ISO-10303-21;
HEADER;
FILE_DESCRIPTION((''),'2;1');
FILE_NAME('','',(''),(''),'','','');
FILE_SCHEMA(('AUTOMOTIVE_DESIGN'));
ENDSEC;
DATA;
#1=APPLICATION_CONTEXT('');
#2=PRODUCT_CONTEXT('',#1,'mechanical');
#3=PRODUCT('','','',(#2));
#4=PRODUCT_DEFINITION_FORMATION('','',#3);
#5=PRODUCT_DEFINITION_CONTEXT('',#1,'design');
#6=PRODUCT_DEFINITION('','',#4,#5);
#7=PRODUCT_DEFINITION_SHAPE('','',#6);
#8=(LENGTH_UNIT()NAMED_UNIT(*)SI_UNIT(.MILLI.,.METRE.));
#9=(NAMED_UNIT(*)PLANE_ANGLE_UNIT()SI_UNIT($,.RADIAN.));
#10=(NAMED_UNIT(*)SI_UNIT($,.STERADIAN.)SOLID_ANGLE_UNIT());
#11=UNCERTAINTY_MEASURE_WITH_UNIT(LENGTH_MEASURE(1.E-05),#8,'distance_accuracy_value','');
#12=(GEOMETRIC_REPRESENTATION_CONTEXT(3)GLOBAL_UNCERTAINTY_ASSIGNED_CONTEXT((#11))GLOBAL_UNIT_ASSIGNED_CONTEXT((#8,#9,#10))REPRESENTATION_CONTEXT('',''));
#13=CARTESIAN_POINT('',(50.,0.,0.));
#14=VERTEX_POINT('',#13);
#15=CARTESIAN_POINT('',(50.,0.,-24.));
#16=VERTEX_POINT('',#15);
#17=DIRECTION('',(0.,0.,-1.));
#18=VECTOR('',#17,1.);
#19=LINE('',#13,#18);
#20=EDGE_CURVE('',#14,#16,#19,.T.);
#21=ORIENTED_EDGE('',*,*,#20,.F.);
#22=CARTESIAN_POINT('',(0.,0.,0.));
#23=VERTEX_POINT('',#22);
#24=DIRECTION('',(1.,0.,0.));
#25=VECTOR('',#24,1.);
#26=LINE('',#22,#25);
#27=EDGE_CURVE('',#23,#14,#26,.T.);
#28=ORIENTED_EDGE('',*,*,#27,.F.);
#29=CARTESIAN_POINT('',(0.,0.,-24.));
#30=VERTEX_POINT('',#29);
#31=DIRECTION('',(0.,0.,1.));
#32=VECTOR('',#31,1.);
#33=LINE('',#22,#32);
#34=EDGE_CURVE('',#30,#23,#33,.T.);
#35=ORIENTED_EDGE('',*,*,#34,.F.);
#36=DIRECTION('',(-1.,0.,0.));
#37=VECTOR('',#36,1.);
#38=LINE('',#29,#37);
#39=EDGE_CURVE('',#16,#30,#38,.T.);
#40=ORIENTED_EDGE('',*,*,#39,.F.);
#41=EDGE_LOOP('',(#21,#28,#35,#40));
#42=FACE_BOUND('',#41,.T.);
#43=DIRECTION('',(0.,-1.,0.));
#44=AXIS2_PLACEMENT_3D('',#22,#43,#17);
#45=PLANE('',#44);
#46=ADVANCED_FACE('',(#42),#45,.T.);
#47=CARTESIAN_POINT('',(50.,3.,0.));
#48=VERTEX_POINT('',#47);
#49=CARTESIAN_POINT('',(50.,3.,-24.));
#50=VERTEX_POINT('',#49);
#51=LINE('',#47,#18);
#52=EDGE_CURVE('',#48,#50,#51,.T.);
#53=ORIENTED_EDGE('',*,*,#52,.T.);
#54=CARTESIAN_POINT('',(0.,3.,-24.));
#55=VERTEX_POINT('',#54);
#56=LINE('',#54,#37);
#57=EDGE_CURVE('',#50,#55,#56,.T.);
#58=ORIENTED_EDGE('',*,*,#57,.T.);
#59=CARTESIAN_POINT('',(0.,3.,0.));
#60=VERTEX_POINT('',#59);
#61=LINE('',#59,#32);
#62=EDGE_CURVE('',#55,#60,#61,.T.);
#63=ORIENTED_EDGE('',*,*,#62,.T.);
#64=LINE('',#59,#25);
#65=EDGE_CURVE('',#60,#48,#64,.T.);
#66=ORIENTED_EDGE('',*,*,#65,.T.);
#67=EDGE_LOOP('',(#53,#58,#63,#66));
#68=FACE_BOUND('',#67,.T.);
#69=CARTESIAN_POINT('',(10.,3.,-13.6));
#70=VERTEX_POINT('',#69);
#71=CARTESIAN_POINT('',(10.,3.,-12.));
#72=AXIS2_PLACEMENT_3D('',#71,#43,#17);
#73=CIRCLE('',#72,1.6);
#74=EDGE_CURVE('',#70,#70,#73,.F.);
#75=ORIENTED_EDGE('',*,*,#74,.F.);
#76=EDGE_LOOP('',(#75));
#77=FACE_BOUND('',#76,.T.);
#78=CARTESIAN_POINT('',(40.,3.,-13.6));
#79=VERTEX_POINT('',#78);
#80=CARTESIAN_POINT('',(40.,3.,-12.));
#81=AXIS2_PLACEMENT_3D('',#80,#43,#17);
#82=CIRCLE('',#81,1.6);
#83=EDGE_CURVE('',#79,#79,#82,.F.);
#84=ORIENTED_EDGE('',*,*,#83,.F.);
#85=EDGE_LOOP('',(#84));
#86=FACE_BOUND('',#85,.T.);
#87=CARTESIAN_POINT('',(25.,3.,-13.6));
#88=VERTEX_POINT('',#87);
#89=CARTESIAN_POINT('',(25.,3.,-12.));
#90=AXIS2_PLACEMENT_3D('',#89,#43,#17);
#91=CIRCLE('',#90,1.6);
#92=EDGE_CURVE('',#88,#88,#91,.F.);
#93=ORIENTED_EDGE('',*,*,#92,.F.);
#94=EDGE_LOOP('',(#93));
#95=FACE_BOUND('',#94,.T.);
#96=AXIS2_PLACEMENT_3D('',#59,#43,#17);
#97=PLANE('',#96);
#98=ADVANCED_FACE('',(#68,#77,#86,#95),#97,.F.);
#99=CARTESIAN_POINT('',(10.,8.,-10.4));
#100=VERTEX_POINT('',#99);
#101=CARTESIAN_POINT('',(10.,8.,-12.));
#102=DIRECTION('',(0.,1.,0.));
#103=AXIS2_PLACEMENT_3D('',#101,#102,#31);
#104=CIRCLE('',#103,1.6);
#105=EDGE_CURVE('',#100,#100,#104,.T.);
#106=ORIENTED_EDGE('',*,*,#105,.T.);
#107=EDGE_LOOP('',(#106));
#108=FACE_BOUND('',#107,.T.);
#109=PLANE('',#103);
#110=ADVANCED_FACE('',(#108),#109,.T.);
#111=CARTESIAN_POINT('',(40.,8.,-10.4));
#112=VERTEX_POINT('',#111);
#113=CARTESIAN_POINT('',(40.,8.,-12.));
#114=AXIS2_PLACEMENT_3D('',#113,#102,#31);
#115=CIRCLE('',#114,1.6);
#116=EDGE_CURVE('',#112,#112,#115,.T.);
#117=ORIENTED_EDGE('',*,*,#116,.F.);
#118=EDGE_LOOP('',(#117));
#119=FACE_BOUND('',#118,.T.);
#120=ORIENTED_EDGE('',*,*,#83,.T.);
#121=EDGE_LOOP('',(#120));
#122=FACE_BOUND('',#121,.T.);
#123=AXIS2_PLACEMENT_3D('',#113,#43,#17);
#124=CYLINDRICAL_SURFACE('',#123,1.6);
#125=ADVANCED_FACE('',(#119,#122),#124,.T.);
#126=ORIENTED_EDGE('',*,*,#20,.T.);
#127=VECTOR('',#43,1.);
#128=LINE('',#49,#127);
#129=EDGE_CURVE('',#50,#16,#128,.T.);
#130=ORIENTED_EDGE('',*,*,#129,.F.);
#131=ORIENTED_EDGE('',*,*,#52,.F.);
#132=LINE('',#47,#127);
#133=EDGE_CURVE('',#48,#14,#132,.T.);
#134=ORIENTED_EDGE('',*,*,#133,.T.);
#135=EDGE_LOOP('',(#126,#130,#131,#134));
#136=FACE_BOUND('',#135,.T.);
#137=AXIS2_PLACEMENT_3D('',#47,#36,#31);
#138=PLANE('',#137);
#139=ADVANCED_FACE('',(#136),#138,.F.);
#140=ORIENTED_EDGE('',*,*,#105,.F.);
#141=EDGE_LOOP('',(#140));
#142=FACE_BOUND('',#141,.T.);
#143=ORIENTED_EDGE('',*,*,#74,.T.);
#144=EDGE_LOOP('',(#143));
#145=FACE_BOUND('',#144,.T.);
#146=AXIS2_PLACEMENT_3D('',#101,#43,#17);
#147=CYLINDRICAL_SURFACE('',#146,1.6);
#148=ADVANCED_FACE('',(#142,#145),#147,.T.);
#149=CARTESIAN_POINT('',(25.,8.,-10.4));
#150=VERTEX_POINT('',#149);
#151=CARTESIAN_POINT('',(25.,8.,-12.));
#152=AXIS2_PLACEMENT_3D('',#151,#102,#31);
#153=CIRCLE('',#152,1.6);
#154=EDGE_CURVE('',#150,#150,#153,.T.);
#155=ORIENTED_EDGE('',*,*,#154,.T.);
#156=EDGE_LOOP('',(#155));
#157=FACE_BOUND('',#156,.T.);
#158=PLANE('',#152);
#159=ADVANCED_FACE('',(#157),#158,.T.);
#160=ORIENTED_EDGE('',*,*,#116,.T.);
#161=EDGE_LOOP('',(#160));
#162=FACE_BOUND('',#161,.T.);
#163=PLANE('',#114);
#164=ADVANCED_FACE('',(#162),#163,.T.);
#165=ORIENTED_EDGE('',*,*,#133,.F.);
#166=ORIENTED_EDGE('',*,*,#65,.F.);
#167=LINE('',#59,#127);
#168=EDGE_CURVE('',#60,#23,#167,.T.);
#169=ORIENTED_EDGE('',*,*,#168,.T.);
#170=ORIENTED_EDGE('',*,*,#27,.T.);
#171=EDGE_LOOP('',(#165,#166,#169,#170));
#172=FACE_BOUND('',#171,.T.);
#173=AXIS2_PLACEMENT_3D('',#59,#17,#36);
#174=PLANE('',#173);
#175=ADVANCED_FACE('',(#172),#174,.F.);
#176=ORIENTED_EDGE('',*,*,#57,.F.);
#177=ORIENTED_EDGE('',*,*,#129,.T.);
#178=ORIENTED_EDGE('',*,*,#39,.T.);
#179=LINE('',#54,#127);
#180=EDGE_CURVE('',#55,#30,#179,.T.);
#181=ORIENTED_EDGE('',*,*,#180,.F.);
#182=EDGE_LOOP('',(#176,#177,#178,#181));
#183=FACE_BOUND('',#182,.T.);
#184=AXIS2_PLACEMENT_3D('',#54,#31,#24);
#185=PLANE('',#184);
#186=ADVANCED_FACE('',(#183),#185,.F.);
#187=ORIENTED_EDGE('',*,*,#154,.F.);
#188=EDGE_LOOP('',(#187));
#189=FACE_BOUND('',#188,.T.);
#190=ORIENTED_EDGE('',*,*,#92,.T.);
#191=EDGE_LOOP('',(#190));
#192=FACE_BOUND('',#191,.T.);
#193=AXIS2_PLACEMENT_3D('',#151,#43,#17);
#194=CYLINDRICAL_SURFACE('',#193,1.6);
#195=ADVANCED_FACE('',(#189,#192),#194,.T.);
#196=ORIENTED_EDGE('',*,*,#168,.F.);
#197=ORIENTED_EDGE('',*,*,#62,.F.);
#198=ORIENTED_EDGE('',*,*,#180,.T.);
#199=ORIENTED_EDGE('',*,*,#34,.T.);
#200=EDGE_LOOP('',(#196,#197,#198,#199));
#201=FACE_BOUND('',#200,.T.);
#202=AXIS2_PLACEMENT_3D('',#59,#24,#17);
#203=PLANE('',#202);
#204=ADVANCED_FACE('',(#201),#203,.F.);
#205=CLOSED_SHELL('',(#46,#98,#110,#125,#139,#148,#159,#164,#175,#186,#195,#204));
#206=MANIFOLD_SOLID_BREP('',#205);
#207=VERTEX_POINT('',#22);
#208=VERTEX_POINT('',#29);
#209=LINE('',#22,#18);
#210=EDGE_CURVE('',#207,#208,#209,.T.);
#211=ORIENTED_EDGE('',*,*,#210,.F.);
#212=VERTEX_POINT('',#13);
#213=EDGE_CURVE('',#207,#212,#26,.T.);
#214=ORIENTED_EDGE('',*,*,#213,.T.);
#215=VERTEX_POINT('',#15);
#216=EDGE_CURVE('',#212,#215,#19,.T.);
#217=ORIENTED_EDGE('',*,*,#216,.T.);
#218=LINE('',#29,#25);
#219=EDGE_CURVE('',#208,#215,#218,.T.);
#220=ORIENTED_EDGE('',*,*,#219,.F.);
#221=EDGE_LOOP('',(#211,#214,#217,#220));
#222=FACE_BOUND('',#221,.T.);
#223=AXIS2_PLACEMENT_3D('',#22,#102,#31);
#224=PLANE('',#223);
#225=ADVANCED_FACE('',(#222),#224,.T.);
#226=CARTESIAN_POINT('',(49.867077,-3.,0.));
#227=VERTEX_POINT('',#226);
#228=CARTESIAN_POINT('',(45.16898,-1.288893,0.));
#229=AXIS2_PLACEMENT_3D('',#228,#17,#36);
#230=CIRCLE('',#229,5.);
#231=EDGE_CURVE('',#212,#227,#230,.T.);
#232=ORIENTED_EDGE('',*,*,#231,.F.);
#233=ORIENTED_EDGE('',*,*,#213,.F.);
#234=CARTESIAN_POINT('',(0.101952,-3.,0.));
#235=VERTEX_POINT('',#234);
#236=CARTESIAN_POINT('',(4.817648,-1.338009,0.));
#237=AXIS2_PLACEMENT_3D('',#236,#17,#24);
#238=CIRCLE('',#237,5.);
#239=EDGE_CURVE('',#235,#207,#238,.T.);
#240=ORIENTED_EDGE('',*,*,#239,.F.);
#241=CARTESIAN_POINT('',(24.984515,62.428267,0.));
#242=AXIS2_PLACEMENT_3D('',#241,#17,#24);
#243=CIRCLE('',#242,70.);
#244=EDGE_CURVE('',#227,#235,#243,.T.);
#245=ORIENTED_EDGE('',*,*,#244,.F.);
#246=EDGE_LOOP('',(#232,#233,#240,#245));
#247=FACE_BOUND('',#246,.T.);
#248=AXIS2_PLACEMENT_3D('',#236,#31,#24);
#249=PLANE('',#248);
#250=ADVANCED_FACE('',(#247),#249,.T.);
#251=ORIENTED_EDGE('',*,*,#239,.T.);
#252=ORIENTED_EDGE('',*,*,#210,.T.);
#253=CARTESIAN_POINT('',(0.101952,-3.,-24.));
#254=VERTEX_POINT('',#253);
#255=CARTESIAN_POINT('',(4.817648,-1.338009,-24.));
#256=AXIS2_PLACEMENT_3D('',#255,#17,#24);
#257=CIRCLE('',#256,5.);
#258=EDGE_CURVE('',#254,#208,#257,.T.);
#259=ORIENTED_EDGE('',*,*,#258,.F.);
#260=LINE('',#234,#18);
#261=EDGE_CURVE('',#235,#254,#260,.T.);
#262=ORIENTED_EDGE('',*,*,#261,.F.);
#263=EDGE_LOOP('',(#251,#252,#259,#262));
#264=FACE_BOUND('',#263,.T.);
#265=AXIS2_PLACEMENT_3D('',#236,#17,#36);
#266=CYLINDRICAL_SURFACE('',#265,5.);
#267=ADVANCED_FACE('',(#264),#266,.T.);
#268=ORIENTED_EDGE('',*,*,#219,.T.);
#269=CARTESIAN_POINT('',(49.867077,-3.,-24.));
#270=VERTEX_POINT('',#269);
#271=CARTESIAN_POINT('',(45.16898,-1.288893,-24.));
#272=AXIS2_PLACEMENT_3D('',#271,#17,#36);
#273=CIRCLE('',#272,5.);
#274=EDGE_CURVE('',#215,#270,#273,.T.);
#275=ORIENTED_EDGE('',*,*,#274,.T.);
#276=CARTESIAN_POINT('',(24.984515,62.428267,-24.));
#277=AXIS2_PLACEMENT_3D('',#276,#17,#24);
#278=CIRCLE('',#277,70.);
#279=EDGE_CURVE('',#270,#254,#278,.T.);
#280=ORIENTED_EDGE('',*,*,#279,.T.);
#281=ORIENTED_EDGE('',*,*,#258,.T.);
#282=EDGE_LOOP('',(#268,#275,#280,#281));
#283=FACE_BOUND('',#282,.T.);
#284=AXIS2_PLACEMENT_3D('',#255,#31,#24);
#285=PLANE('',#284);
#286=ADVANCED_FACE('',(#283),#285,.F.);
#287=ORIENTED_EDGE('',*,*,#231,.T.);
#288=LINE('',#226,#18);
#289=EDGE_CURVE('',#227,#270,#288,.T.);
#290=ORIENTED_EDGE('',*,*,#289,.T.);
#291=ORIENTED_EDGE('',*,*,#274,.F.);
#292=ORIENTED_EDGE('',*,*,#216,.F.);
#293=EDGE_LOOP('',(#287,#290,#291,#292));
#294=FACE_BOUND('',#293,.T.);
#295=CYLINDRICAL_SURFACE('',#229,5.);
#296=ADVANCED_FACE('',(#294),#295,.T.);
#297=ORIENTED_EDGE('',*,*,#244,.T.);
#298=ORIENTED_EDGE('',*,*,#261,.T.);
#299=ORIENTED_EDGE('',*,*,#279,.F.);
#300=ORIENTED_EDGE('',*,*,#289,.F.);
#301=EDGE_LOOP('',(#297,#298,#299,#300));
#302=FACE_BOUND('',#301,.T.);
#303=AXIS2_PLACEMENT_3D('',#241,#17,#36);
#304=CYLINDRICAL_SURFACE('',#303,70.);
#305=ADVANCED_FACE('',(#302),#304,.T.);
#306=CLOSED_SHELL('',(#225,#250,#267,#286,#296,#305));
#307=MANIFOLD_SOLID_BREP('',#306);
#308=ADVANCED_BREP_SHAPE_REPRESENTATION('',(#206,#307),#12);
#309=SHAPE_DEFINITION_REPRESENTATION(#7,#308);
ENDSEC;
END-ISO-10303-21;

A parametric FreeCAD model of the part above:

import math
import FreeCAD as App
import Part
import Sketcher
from FreeCAD import Vector

doc = App.newDocument("Part")
body = doc.addObject("PartDesign::Body", "Body")

sketch1 = doc.addObject("Sketcher::SketchObject", "Sketch")
body.addObject(sketch1)
sketch1.AttachmentSupport = (doc.XZ_Plane, [""])
sketch1.MapMode = "FlatFace"
sketch1.addGeometry(Part.LineSegment(Vector(0, -24, 0), Vector(0, 0, 0)), False)
sketch1.addGeometry(Part.LineSegment(Vector(0, 0, 0), Vector(50, 0, 0)), False)
sketch1.addGeometry(Part.LineSegment(Vector(50, 0, 0), Vector(50, -24, 0)), False)
sketch1.addGeometry(Part.LineSegment(Vector(50, -24, 0), Vector(0, -24, 0)), False)
sketch1.addConstraint(Sketcher.Constraint("Coincident", 0, 2, 1, 1))
sketch1.addConstraint(Sketcher.Constraint("Coincident", 1, 2, 2, 1))
sketch1.addConstraint(Sketcher.Constraint("Coincident", 2, 2, 3, 1))
sketch1.addConstraint(Sketcher.Constraint("Coincident", 3, 2, 0, 1))
sketch1.addConstraint(Sketcher.Constraint("Vertical", 0))
sketch1.addConstraint(Sketcher.Constraint("Horizontal", 1))
sketch1.addConstraint(Sketcher.Constraint("Vertical", 2))
sketch1.addConstraint(Sketcher.Constraint("Horizontal", 3))
sketch1.addConstraint(Sketcher.Constraint("Coincident", 0, 2, -1, 1))
sketch1.addConstraint(Sketcher.Constraint("DistanceX", 1, 1, 1, 2, 50.0))
sketch1.addConstraint(Sketcher.Constraint("DistanceY", 0, 1, 0, 2, 24.0))
pad1 = doc.addObject("PartDesign::Pad", "Pad")
body.addObject(pad1)
pad1.Profile = sketch1
pad1.Length = 3
pad1.Reversed = True

sketch2 = doc.addObject("Sketcher::SketchObject", "Sketch001")
body.addObject(sketch2)
sketch2.AttachmentSupport = (doc.XZ_Plane, [""])
sketch2.MapMode = "FlatFace"
sketch2.AttachmentOffset = App.Placement(Vector(0, 0, -3), App.Rotation())
sketch2.addGeometry(Part.Circle(Vector(10, -12, 0), Vector(0, 0, 1), 1.6), False)
sketch2.addGeometry(Part.Circle(Vector(25, -12, 0), Vector(0, 0, 1), 1.6), False)
sketch2.addGeometry(Part.Circle(Vector(40, -12, 0), Vector(0, 0, 1), 1.6), False)
sketch2.addConstraint(Sketcher.Constraint("Equal", 0, 1))
sketch2.addConstraint(Sketcher.Constraint("Equal", 1, 2))
sketch2.addConstraint(Sketcher.Constraint("Horizontal", 0, 3, 1, 3))
sketch2.addConstraint(Sketcher.Constraint("Horizontal", 1, 3, 2, 3))
sketch2.addConstraint(Sketcher.Constraint("Diameter", 0, 3.2))
sketch2.addConstraint(Sketcher.Constraint("DistanceX", -1, 1, 0, 3, 10.0))
sketch2.addConstraint(Sketcher.Constraint("DistanceY", 0, 3, -1, 1, 12.0))
sketch2.addConstraint(Sketcher.Constraint("DistanceX", -1, 1, 1, 3, 25.0))
sketch2.addConstraint(Sketcher.Constraint("DistanceX", -1, 1, 2, 3, 40.0))
pad2 = doc.addObject("PartDesign::Pad", "Pad001")
body.addObject(pad2)
pad2.Profile = sketch2
pad2.Length = 5
pad2.Reversed = True
body2 = doc.addObject("PartDesign::Body", "Body001")

sketch3 = doc.addObject("Sketcher::SketchObject", "Sketch002")
body2.addObject(sketch3)
sketch3.AttachmentSupport = (doc.getObject("XY_Plane001"), [""])
sketch3.MapMode = "FlatFace"
sketch3.AttachmentOffset = App.Placement(Vector(0, 0, -24), App.Rotation())
sketch3.addGeometry(Part.LineSegment(Vector(0, 0, 0), Vector(50, 0, 0)), False)
sketch3.addGeometry(Part.ArcOfCircle(Part.Circle(Vector(45.2, -1.3, 0), Vector(0, 0, 1), 5), math.radians(-20), math.radians(15)), False)
sketch3.addGeometry(Part.ArcOfCircle(Part.Circle(Vector(25, 62.4, 0), Vector(0, 0, 1), 70), math.radians(-111), math.radians(-69)), False)
sketch3.addGeometry(Part.ArcOfCircle(Part.Circle(Vector(4.8, -1.3, 0), Vector(0, 0, 1), 5), math.radians(164), math.radians(199)), False)
sketch3.addConstraint(Sketcher.Constraint("Coincident", 0, 2, 1, 2))
sketch3.addConstraint(Sketcher.Constraint("Coincident", 1, 1, 2, 2))
sketch3.addConstraint(Sketcher.Constraint("Coincident", 2, 1, 3, 2))
sketch3.addConstraint(Sketcher.Constraint("Coincident", 3, 1, 0, 1))
sketch3.addConstraint(Sketcher.Constraint("Horizontal", 0))
sketch3.addConstraint(Sketcher.Constraint("Coincident", 3, 1, -1, 1))
sketch3.addConstraint(Sketcher.Constraint("Equal", 1, 3))
sketch3.addConstraint(Sketcher.Constraint("Horizontal", 1, 1, 2, 1))
sketch3.addConstraint(Sketcher.Constraint("Radius", 1, 5.0))
sketch3.addConstraint(Sketcher.Constraint("Radius", 2, 70.0))
sketch3.addConstraint(Sketcher.Constraint("DistanceX", 0, 1, 0, 2, 50.0))
sketch3.addConstraint(Sketcher.Constraint("DistanceY", 1, 1, -1, 1, 3.0))
sketch3.addConstraint(Sketcher.Constraint("DistanceX", -1, 1, 1, 3, 45.16898))
sketch3.addConstraint(Sketcher.Constraint("DistanceX", -1, 1, 3, 3, 4.817648))
pad3 = doc.addObject("PartDesign::Pad", "Pad002")
body2.addObject(pad3)
pad3.Profile = sketch3
pad3.Length = 24

doc.recompute()
